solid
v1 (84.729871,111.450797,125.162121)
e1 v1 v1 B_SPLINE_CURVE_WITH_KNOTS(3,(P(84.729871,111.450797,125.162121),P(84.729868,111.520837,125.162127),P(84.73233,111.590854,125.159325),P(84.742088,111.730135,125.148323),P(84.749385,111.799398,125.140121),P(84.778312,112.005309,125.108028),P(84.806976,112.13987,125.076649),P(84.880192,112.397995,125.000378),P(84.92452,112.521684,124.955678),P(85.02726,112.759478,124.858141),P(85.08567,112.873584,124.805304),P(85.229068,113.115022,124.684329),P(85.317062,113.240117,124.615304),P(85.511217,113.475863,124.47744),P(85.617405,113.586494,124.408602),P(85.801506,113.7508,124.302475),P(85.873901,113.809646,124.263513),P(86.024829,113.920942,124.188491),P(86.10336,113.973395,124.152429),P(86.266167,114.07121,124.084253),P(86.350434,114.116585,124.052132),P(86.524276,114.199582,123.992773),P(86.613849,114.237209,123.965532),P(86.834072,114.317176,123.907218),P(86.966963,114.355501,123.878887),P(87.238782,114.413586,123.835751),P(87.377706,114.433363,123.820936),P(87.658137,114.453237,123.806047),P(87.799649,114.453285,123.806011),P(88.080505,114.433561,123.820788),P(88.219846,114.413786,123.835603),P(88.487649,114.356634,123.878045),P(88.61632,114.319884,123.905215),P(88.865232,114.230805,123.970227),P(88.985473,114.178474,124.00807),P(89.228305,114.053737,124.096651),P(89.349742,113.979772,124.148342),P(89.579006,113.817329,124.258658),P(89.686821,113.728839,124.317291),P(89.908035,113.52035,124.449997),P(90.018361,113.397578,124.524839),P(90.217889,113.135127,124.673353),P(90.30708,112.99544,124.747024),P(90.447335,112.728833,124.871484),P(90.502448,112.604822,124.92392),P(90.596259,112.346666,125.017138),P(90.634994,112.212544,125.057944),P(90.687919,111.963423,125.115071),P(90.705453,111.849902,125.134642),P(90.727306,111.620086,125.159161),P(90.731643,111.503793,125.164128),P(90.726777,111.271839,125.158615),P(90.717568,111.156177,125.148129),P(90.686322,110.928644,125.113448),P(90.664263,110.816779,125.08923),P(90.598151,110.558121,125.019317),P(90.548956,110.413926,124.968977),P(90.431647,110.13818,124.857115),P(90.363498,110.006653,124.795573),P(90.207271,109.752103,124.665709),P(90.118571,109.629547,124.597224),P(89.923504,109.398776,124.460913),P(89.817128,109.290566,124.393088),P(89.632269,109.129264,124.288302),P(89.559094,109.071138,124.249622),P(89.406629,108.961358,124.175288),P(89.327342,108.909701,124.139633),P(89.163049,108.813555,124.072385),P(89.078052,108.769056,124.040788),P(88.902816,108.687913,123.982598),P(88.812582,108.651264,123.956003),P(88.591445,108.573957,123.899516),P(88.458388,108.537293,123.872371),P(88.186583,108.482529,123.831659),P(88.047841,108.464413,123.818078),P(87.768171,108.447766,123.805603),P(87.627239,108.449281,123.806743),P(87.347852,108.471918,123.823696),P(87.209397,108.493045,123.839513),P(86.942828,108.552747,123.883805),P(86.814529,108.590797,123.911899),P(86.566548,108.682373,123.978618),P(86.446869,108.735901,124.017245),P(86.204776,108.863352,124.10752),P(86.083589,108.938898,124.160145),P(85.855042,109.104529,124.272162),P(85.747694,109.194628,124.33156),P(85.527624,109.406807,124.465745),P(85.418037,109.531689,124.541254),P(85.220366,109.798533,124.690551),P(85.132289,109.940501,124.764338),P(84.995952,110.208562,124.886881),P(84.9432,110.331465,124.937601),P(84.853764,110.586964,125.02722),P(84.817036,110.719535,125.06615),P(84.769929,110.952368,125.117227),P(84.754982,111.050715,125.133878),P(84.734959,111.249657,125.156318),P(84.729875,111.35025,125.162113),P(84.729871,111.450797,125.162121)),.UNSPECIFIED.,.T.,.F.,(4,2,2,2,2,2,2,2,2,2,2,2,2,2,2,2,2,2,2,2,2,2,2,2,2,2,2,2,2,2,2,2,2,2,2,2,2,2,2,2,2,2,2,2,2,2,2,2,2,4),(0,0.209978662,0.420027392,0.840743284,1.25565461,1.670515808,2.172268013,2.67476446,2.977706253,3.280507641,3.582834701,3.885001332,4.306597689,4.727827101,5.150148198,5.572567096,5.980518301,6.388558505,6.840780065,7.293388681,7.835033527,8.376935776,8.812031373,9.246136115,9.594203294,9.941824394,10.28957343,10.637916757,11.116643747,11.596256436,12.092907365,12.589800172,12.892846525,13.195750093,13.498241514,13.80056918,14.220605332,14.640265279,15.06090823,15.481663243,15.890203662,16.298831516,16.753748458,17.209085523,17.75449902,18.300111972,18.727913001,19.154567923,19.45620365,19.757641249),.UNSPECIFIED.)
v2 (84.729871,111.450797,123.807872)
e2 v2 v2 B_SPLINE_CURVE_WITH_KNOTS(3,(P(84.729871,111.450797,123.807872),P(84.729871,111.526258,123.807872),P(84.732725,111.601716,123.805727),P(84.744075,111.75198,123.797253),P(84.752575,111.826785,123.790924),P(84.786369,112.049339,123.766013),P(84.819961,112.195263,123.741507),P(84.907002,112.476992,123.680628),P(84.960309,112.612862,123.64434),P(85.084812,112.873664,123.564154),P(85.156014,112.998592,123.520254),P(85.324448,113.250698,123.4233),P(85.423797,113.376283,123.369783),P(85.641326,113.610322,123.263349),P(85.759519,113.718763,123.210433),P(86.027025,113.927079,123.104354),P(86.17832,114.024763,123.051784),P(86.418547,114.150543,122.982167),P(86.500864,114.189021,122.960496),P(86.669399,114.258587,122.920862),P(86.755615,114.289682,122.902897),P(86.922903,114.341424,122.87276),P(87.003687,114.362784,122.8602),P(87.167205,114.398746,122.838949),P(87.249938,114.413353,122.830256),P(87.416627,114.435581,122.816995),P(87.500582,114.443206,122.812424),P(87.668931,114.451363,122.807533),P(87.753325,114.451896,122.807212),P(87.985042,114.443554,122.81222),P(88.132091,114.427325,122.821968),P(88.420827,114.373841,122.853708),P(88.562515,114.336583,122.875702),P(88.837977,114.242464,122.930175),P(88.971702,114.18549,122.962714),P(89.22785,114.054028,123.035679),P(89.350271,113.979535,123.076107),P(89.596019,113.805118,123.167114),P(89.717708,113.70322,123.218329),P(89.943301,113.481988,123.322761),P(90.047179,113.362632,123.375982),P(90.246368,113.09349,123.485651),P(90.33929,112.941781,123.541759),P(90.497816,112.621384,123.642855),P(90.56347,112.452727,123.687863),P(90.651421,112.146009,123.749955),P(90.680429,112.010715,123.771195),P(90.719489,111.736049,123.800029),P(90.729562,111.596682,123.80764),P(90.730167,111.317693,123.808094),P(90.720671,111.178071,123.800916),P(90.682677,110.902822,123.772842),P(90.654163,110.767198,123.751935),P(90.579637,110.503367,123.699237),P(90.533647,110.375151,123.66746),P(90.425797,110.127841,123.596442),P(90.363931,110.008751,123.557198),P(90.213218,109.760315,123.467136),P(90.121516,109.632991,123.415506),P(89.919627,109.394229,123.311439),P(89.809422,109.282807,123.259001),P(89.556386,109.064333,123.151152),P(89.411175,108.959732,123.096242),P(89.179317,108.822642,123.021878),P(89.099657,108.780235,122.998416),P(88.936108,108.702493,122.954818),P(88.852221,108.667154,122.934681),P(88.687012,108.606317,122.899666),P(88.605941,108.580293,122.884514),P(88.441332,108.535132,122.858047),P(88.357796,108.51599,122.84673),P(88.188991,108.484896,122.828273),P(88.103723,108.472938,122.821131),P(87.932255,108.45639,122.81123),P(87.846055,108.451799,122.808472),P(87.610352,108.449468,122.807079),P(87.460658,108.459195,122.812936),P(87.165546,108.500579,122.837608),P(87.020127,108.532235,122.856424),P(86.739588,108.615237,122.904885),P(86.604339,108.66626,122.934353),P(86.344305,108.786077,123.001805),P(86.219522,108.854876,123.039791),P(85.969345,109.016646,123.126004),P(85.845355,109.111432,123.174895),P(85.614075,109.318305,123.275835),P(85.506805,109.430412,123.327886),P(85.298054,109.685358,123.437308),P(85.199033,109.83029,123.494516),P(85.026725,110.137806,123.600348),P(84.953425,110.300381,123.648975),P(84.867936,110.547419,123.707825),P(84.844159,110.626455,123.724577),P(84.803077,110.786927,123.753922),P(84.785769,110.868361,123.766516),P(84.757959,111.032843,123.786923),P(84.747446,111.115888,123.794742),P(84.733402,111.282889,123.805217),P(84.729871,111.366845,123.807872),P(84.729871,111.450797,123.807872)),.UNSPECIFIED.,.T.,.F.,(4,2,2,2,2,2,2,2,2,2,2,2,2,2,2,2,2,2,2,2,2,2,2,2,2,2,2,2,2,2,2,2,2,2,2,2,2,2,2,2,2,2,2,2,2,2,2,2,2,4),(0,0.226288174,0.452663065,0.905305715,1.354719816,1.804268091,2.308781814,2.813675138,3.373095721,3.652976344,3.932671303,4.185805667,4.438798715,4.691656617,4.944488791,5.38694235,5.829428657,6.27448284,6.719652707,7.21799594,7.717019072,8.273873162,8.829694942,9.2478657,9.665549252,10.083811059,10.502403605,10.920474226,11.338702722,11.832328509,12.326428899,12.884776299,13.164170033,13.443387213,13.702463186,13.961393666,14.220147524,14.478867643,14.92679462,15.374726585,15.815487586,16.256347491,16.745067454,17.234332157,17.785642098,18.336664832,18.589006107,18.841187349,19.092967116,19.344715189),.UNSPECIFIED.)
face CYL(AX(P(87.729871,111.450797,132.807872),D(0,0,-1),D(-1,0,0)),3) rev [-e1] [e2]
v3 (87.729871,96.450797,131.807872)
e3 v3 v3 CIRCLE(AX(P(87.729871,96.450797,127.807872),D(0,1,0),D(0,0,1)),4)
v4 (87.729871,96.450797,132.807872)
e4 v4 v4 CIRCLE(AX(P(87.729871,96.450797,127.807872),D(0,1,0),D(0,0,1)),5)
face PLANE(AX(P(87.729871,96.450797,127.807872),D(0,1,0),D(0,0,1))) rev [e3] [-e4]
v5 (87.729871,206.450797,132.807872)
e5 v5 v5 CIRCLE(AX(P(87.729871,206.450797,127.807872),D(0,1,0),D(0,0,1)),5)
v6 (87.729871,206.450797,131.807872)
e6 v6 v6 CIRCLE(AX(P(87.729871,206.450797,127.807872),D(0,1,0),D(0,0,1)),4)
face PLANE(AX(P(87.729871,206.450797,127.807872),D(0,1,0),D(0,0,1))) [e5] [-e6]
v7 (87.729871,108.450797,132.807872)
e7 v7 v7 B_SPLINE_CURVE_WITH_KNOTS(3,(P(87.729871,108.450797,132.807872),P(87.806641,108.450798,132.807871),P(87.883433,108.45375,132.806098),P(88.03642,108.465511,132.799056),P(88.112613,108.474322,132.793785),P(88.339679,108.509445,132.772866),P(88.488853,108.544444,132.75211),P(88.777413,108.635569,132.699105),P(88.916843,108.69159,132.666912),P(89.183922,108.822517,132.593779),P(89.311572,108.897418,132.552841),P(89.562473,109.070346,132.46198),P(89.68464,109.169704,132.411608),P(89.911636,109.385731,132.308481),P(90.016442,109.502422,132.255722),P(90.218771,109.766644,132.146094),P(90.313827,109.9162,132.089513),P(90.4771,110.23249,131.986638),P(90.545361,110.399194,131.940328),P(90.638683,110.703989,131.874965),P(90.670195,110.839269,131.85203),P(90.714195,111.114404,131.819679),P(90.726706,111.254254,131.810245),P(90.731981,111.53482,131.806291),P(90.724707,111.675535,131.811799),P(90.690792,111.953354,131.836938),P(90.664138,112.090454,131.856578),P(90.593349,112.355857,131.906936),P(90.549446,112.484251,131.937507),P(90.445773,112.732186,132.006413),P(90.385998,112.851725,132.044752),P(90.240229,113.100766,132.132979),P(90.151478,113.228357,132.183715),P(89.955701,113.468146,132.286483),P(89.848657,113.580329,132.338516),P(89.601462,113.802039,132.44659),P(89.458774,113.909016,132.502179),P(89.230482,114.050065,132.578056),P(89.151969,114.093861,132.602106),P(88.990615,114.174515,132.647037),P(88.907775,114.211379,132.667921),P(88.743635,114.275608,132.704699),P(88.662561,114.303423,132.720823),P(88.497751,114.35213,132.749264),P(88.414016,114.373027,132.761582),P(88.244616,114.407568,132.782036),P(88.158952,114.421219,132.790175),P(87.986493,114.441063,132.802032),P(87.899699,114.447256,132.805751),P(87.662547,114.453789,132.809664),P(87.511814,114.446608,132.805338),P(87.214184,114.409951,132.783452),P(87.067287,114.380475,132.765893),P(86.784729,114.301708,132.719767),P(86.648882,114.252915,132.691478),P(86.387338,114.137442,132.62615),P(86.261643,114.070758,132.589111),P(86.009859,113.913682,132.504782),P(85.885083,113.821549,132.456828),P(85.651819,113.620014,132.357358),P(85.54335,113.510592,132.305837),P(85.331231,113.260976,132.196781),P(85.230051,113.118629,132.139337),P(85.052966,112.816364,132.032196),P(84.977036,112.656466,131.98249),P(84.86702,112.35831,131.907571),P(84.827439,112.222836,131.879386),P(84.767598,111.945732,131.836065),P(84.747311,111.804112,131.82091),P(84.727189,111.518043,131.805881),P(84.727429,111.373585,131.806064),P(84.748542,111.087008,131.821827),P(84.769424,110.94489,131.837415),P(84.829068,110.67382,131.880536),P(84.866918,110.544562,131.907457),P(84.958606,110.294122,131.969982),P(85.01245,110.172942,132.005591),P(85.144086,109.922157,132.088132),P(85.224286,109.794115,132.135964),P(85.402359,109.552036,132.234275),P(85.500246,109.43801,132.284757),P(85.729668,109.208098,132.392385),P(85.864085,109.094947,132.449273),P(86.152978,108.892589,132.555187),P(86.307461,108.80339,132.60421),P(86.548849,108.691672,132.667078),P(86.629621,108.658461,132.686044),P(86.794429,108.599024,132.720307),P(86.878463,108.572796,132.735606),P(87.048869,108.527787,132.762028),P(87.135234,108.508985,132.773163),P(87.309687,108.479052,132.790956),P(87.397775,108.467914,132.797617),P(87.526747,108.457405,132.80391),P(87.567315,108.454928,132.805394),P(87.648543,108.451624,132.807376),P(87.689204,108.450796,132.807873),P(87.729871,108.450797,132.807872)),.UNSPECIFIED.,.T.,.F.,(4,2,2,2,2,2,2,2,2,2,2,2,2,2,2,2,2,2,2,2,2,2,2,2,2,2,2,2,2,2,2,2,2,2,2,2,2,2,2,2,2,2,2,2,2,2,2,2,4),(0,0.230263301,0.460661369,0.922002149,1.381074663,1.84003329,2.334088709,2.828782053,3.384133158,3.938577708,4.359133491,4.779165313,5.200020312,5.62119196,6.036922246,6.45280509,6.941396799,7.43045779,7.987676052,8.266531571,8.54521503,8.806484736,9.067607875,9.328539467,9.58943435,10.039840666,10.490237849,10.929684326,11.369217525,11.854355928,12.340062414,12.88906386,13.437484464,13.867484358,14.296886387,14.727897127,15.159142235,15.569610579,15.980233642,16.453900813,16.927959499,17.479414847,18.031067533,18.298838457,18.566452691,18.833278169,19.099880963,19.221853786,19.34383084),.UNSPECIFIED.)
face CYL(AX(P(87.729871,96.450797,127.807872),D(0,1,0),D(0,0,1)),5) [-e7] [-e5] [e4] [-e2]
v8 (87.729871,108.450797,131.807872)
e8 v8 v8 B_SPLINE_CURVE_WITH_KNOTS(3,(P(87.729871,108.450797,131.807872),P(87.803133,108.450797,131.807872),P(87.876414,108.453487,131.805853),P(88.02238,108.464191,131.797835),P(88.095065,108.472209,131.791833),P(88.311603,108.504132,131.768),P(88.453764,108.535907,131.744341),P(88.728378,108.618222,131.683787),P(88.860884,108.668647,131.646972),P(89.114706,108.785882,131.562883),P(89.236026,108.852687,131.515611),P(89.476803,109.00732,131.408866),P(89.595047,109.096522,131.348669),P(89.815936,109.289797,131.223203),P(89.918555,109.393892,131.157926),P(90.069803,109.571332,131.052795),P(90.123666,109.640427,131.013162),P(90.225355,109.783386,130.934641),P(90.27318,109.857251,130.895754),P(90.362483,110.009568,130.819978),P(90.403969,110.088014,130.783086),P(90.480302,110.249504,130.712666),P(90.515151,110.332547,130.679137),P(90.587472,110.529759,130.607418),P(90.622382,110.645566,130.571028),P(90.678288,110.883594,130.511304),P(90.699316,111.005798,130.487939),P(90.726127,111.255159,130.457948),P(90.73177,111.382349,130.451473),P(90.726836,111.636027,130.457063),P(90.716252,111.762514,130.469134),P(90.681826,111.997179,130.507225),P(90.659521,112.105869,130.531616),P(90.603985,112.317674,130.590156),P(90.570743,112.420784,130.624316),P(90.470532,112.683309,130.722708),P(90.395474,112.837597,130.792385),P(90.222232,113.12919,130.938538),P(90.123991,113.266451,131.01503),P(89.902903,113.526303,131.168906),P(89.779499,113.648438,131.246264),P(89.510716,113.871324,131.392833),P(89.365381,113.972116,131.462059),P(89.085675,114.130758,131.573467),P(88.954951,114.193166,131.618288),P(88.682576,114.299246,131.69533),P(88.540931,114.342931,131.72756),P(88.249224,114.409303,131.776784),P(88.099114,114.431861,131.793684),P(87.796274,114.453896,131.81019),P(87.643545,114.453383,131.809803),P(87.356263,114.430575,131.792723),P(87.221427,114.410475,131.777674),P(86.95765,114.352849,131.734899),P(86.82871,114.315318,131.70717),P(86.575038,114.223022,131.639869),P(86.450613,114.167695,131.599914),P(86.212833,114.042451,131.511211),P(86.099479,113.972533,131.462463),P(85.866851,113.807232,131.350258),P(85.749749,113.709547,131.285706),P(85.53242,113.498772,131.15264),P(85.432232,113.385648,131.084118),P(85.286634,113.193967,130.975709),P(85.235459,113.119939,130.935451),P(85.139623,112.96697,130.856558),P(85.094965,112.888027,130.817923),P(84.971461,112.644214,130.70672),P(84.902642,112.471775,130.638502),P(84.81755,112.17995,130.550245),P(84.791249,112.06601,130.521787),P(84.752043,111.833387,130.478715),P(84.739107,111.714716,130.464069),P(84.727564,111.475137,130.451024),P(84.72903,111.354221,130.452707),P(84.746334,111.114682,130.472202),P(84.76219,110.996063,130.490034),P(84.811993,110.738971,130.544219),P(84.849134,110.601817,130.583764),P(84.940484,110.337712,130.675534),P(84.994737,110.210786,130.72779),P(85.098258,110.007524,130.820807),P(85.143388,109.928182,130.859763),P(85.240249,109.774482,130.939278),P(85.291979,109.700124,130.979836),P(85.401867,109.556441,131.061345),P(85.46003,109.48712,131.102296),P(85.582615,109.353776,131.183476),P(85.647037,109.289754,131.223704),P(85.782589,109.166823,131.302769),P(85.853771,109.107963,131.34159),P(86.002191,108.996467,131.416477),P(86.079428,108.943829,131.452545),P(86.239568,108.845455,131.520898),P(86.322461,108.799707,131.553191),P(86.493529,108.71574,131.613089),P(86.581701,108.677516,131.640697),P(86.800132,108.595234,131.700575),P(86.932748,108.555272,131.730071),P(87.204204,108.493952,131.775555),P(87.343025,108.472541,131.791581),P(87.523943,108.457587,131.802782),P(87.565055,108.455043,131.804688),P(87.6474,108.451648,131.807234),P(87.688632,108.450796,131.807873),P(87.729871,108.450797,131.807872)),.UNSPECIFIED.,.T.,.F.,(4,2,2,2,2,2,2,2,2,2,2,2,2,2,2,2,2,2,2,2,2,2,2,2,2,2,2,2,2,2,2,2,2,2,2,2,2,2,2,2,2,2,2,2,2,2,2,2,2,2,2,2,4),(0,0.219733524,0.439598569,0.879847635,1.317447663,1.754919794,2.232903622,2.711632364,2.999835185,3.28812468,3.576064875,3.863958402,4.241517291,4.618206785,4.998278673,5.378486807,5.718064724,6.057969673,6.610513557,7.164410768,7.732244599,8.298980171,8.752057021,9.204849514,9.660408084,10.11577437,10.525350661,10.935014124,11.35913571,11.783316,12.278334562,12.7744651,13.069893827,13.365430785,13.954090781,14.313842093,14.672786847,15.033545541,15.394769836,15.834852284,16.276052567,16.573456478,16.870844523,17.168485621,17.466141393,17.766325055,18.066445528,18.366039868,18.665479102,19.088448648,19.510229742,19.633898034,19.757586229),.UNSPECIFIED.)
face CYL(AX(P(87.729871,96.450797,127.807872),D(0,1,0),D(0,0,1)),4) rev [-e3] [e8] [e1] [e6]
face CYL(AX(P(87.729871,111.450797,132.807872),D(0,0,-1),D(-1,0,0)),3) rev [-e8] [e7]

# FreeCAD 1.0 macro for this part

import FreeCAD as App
import Part
import Sketcher
Q = App.Units.Quantity

doc = App.newDocument("Part")
body = doc.addObject("PartDesign::Body", "Body")

# Sketch on XZ plane
sketch1 = body.newObject("Sketcher::SketchObject", "Sketch")
sketch1.AttachmentSupport = (doc.getObject("XZ_Plane"), [""])
sketch1.MapMode = "FlatFace"
sketch1.AttachmentOffset = App.Placement(App.Vector(0, 0, -126.450797), App.Rotation())
sketch1.addGeometry([
    Part.Circle(App.Vector(87.729871, 127.807872, 0), App.Vector(0, 0, 1), 5),
    Part.Circle(App.Vector(87.729871, 127.807872, 0), App.Vector(0, 0, 1), 4),
], False)
sketch1.addConstraint([
    Sketcher.Constraint("Coincident", 1, 3, 0, 3),
    Sketcher.Constraint("Diameter", 0, Q("10 mm")),
    Sketcher.Constraint("Diameter", 1, Q("8 mm")),
    Sketcher.Constraint("DistanceX", -1, 1, 0, 3, Q("87.729871 mm")),
    Sketcher.Constraint("DistanceY", -1, 1, 0, 3, Q("127.807872 mm")),
])
pad1 = body.newObject("PartDesign::Pad", "Pad")
pad1.Profile = sketch1
pad1.Type = "TwoLengths"
pad1.Length = 80
pad1.Length2 = 30
pad1.Reversed = True

# Sketch on XY plane
sketch2 = body.newObject("Sketcher::SketchObject", "Sketch001")
sketch2.AttachmentSupport = (doc.getObject("XY_Plane"), [""])
sketch2.MapMode = "FlatFace"
sketch2.AttachmentOffset = App.Placement(App.Vector(0, 0, 127.807872), App.Rotation())
sketch2.addGeometry(Part.Circle(App.Vector(87.729871, 111.450797, 0), App.Vector(0, 0, 1), 3), False)
sketch2.addConstraint([
    Sketcher.Constraint("Diameter", 0, Q("6 mm")),
    Sketcher.Constraint("DistanceX", -1, 1, 0, 3, Q("87.729871 mm")),
    Sketcher.Constraint("DistanceY", -1, 1, 0, 3, Q("111.450797 mm")),
])
pocket1 = body.newObject("PartDesign::Pocket", "Pocket")
pocket1.Profile = sketch2
pocket1.Type = "ThroughAll"
pocket1.Midplane = True

doc.recompute()
